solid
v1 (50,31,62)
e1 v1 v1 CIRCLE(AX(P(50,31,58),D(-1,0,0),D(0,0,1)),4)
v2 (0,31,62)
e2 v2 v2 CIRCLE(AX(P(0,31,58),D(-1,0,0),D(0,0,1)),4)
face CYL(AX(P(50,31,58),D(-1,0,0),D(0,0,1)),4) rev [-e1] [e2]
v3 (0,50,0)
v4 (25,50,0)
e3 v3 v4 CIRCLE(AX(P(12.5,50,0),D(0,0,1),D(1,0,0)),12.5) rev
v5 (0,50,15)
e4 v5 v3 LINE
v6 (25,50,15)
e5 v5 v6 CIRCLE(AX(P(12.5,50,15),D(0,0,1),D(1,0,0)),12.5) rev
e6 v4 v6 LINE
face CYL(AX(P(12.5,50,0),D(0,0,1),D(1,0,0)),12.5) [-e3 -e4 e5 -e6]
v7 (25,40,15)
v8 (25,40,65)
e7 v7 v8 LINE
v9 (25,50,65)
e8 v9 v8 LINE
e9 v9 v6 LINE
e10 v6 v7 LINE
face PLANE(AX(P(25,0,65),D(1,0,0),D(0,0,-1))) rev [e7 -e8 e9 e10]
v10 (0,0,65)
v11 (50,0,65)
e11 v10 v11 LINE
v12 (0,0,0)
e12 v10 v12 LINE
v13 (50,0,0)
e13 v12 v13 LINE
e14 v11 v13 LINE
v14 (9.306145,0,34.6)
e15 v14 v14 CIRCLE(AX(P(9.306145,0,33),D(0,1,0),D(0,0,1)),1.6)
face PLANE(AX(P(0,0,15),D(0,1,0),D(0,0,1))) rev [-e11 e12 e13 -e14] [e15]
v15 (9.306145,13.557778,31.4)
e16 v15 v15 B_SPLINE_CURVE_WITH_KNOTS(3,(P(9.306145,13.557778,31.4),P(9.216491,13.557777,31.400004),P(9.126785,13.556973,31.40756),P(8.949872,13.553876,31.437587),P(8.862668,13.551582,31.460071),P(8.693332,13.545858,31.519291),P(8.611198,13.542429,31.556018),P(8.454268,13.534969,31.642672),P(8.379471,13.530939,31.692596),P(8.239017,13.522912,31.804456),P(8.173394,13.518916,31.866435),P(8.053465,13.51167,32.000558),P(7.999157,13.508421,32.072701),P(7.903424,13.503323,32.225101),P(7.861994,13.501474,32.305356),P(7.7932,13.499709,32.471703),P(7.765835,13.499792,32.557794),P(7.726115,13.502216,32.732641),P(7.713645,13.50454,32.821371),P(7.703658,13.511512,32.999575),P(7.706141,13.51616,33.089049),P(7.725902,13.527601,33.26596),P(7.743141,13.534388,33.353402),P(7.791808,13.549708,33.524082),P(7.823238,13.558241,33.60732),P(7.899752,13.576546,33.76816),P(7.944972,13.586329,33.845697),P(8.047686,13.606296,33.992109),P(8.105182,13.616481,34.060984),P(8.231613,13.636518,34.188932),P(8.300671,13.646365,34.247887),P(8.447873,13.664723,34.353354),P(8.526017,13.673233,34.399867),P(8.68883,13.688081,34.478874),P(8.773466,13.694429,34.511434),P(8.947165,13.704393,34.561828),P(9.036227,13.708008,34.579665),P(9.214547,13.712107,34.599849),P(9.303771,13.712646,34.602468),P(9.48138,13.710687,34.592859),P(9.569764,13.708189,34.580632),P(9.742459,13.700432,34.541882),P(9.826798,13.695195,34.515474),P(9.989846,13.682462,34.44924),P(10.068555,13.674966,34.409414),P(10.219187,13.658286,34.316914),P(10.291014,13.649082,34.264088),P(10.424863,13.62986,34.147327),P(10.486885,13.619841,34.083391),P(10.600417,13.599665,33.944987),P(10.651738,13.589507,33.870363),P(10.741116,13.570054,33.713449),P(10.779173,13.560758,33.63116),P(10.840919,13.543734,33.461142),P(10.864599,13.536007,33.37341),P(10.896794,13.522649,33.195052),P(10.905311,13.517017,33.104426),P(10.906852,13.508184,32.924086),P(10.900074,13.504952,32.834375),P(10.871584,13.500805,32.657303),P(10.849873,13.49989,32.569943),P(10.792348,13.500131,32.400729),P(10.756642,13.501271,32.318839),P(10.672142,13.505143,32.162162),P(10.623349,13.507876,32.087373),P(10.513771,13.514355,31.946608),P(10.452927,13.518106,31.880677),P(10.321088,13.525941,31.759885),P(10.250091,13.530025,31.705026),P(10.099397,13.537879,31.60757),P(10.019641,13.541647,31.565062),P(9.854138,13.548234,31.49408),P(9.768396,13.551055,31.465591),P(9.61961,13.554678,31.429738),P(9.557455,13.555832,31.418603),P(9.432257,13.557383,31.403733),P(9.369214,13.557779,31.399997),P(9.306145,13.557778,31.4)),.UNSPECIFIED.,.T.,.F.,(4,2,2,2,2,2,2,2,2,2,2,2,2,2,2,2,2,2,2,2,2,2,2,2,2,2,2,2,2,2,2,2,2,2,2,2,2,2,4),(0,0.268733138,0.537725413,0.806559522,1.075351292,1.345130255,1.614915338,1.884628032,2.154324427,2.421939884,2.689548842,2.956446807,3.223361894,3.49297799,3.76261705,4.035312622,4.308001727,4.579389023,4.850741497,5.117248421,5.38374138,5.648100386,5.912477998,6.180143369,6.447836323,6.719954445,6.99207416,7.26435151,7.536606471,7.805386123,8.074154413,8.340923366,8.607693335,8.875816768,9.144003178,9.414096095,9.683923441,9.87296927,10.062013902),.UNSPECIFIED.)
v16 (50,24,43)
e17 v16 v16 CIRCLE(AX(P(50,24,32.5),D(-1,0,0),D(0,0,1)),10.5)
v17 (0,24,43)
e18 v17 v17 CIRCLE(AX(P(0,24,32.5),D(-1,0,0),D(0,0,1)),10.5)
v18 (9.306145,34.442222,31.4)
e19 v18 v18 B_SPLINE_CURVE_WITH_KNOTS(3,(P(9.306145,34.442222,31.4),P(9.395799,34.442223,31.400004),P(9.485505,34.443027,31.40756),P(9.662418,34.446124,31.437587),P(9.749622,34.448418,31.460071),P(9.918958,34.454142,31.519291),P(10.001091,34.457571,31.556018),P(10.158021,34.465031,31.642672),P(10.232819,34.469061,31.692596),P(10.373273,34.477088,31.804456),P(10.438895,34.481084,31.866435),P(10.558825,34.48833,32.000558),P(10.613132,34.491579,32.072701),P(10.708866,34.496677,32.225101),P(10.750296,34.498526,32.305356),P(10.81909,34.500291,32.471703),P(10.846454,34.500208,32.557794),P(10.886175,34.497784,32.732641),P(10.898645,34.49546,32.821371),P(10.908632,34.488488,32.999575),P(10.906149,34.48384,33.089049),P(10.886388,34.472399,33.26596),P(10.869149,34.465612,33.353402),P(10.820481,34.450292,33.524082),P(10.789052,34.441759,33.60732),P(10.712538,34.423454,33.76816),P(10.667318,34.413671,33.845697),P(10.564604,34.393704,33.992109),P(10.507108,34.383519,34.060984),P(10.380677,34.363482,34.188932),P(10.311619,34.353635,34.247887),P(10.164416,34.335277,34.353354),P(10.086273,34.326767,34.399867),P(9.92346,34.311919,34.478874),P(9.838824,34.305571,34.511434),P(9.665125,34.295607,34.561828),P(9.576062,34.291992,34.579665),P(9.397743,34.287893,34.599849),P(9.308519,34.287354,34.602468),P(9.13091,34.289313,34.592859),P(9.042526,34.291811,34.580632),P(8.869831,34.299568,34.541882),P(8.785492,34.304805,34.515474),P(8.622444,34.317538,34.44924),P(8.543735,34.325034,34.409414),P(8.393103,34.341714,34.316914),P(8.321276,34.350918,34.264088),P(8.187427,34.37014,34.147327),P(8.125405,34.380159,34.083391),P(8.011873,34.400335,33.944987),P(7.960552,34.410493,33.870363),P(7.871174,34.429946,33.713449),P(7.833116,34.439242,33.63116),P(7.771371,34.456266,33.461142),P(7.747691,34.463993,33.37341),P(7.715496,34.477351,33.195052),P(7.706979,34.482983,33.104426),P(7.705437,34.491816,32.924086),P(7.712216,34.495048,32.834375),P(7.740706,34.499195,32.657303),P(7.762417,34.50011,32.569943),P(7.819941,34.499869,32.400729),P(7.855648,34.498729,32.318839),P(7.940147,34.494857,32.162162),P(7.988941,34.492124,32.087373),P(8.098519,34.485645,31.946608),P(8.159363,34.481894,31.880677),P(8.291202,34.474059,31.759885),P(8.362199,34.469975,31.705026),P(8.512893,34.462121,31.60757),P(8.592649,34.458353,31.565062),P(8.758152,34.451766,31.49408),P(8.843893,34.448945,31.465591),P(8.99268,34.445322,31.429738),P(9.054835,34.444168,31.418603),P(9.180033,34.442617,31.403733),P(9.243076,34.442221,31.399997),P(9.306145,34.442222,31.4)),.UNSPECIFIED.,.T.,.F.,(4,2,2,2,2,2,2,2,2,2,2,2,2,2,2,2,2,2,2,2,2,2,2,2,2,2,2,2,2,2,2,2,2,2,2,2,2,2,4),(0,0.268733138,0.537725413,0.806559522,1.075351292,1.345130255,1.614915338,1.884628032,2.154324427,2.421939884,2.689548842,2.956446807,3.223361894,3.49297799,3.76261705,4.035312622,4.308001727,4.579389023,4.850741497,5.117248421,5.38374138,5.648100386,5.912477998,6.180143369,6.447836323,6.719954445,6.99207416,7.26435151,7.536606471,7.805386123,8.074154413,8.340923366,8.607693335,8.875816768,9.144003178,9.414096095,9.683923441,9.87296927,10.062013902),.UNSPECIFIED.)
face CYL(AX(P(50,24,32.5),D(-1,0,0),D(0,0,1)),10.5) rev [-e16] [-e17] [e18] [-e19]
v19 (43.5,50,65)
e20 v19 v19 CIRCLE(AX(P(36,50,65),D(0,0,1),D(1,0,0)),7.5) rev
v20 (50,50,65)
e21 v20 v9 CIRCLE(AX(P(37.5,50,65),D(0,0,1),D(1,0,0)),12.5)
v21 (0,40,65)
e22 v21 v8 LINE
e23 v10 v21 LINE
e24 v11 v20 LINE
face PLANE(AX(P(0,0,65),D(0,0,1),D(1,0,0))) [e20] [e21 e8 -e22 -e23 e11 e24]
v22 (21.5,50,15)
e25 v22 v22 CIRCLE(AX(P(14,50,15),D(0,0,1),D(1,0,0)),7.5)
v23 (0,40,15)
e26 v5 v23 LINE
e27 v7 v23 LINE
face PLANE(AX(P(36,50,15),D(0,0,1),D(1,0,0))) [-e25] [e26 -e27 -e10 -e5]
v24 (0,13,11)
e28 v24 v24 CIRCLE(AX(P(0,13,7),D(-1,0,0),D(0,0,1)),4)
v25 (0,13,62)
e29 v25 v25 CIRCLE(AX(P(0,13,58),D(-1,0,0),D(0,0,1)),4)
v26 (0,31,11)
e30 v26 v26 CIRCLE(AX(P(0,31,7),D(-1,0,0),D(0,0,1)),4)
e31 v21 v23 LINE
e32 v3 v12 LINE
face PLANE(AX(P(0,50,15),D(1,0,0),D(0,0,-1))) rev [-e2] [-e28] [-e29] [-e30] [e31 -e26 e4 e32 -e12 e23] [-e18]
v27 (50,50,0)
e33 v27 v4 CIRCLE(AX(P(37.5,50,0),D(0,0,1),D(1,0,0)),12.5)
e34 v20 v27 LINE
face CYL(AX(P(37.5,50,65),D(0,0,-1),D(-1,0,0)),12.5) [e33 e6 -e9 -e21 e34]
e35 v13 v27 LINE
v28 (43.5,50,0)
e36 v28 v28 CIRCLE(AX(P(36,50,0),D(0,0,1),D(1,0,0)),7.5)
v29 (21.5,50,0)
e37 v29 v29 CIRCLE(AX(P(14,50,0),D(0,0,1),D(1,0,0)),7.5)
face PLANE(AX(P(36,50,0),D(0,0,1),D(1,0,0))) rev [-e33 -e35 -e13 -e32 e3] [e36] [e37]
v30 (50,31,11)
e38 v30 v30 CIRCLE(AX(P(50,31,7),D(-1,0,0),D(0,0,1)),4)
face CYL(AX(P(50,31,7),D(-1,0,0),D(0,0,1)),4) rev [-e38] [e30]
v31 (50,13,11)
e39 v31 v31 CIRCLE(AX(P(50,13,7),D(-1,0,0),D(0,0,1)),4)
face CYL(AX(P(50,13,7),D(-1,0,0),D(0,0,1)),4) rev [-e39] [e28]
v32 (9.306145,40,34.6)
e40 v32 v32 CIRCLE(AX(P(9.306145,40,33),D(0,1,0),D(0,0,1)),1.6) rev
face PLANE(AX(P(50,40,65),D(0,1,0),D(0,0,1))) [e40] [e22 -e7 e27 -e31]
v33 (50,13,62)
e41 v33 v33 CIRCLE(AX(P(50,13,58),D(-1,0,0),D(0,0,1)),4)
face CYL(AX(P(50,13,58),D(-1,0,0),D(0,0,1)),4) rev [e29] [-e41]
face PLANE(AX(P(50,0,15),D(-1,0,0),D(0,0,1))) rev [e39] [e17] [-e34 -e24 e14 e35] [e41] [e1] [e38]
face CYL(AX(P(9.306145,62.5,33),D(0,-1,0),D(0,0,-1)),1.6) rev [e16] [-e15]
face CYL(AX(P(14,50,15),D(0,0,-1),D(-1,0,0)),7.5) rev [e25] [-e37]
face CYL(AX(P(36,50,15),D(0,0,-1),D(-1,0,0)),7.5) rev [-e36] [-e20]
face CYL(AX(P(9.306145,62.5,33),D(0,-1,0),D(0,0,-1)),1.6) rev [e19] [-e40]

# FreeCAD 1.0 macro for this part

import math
import FreeCAD as App
import Part
import Sketcher
Q = App.Units.Quantity

doc = App.newDocument("Part")
body = doc.addObject("PartDesign::Body", "Body")

sketch1 = body.newObject("Sketcher::SketchObject", "Sketch")
sketch1.AttachmentSupport = (doc.getObject("XY_Plane"), [""])
sketch1.MapMode = "FlatFace"
sketch1.addGeometry([
    Part.LineSegment(App.Vector(0, 0, 0), App.Vector(50, 0, 0)),
    Part.LineSegment(App.Vector(50, 0, 0), App.Vector(50, 50, 0)),
    Part.ArcOfCircle(Part.Circle(App.Vector(36, 50, 0), App.Vector(0, 0, 1), 14), math.radians(0), math.radians(142)),
    Part.ArcOfCircle(Part.Circle(App.Vector(14, 50, 0), App.Vector(0, 0, 1), 14), math.radians(38), math.radians(180)),
    Part.LineSegment(App.Vector(0, 50, 0), App.Vector(0, 0, 0)),
    Part.Circle(App.Vector(14, 50, 0), App.Vector(0, 0, 1), 8),
    Part.Circle(App.Vector(36, 50, 0), App.Vector(0, 0, 1), 8),
], False)
sketch1.addConstraint([
    Sketcher.Constraint("Coincident", 0, 2, 1, 1),
    Sketcher.Constraint("Tangent", 1, 2, 2, 1),
    Sketcher.Constraint("Coincident", 2, 2, 3, 1),
    Sketcher.Constraint("Tangent", 3, 2, 4, 1),
    Sketcher.Constraint("Coincident", 4, 2, 0, 1),
    Sketcher.Constraint("Horizontal", 0),
    Sketcher.Constraint("Vertical", 1),
    Sketcher.Constraint("Vertical", 4),
    Sketcher.Constraint("Coincident", 4, 2, -1, 1),
    Sketcher.Constraint("Coincident", 5, 3, 3, 3),
    Sketcher.Constraint("Coincident", 6, 3, 2, 3),
    Sketcher.Constraint("Equal", 2, 3),
    Sketcher.Constraint("Equal", 5, 6),
    Sketcher.Constraint("Horizontal", 2, 3, 3, 3),
    Sketcher.Constraint("Equal", 0, 1),
    Sketcher.Constraint("Diameter", 5, Q("15 mm")),
    Sketcher.Constraint("Radius", 2, Q("14 mm")),
    Sketcher.Constraint("DistanceX", 0, 1, 0, 2, Q("50 mm")),
])
pad1 = body.newObject("PartDesign::Pad", "Pad")
pad1.Profile = sketch1
pad1.Length = 15

sketch2 = body.newObject("Sketcher::SketchObject", "Sketch001")
sketch2.AttachmentSupport = (doc.getObject("XY_Plane"), [""])
sketch2.MapMode = "FlatFace"
sketch2.AttachmentOffset = App.Placement(App.Vector(0, 0, 15), App.Rotation())
sketch2.addGeometry([
    Part.LineSegment(App.Vector(25, 50, 0), App.Vector(25, 0, 0)),
    Part.LineSegment(App.Vector(25, 0, 0), App.Vector(50, 0, 0)),
    Part.LineSegment(App.Vector(50, 0, 0), App.Vector(50, 50, 0)),
    Part.ArcOfCircle(Part.Circle(App.Vector(38, 50, 0), App.Vector(0, 0, 1), 12), math.radians(0), math.radians(180)),
    Part.Circle(App.Vector(36, 50, 0), App.Vector(0, 0, 1), 8),
], False)
sketch2.addConstraint([
    Sketcher.Constraint("Coincident", 0, 2, 1, 1),
    Sketcher.Constraint("Coincident", 1, 2, 2, 1),
    Sketcher.Constraint("Tangent", 2, 2, 3, 1),
    Sketcher.Constraint("Tangent", 3, 2, 0, 1),
    Sketcher.Constraint("Vertical", 0),
    Sketcher.Constraint("Horizontal", 1),
    Sketcher.Constraint("Vertical", 2),
    Sketcher.Constraint("PointOnObject", 0, 2, -1),
    Sketcher.Constraint("Horizontal", 3, 3, 4, 3),
    Sketcher.Constraint("Diameter", 4, Q("15 mm")),
    Sketcher.Constraint("Radius", 3, Q("12.5 mm")),
    Sketcher.Constraint("DistanceY", 0, 2, 0, 1, Q("50 mm")),
    Sketcher.Constraint("DistanceX", -1, 1, 4, 3, Q("36 mm")),
    Sketcher.Constraint("DistanceX", -1, 1, 0, 2, Q("25 mm")),
])
pad2 = body.newObject("PartDesign::Pad", "Pad001")
pad2.Profile = sketch2
pad2.Length = 50

sketch3 = body.newObject("Sketcher::SketchObject", "Sketch002")
sketch3.AttachmentSupport = (doc.getObject("XY_Plane"), [""])
sketch3.MapMode = "FlatFace"
sketch3.addGeometry([
    Part.LineSegment(App.Vector(50, 40, 0), App.Vector(50, 0, 0)),
    Part.LineSegment(App.Vector(50, 0, 0), App.Vector(0, 0, 0)),
    Part.LineSegment(App.Vector(0, 0, 0), App.Vector(0, 40, 0)),
    Part.LineSegment(App.Vector(0, 40, 0), App.Vector(50, 40, 0)),
], False)
sketch3.addConstraint([
    Sketcher.Constraint("Coincident", 0, 2, 1, 1),
    Sketcher.Constraint("Coincident", 1, 2, 2, 1),
    Sketcher.Constraint("Coincident", 2, 2, 3, 1),
    Sketcher.Constraint("Coincident", 3, 2, 0, 1),
    Sketcher.Constraint("Vertical", 0),
    Sketcher.Constraint("Horizontal", 1),
    Sketcher.Constraint("Vertical", 2),
    Sketcher.Constraint("Horizontal", 3),
    Sketcher.Constraint("Coincident", 1, 2, -1, 1),
    Sketcher.Constraint("DistanceX", 1, 2, 1, 1, Q("50 mm")),
    Sketcher.Constraint("DistanceY", 0, 2, 0, 1, Q("40 mm")),
])
pad3 = body.newObject("PartDesign::Pad", "Pad002")
pad3.Profile = sketch3
pad3.Length = 65

sketch4 = body.newObject("Sketcher::SketchObject", "Sketch003")
sketch4.AttachmentSupport = (doc.getObject("XY_Plane"), [""])
sketch4.MapMode = "FlatFace"
sketch4.AttachmentOffset = App.Placement(App.Vector(0, 0, 15), App.Rotation())
sketch4.addGeometry([
    Part.ArcOfCircle(Part.Circle(App.Vector(38, 50, 0), App.Vector(0, 0, 1), 12), math.radians(0), math.radians(180)),
    Part.ArcOfCircle(Part.Circle(App.Vector(36, 50, 0), App.Vector(0, 0, 1), 14), math.radians(0), math.radians(142)),
    Part.ArcOfCircle(Part.Circle(App.Vector(14, 50, 0), App.Vector(0, 0, 1), 14), math.radians(38), math.radians(180)),
    Part.ArcOfCircle(Part.Circle(App.Vector(12, 50, 0), App.Vector(0, 0, 1), 12), math.radians(0), math.radians(180)),
], False)
sketch4.addConstraint([
    Sketcher.Constraint("Tangent", 0, 1, 1, 1),
    Sketcher.Constraint("Coincident", 1, 2, 2, 1),
    Sketcher.Constraint("Tangent", 2, 2, 3, 2),
    Sketcher.Constraint("Tangent", 3, 1, 0, 2),
    Sketcher.Constraint("Equal", 1, 2),
    Sketcher.Constraint("Equal", 0, 3),
    Sketcher.Constraint("PointOnObject", 2, 2, -2),
    Sketcher.Constraint("Horizontal", 0, 3, 1, 3),
    Sketcher.Constraint("Horizontal", 1, 3, 2, 3),
    Sketcher.Constraint("Horizontal", 2, 3, 3, 3),
    Sketcher.Constraint("Radius", 1, Q("14 mm")),
    Sketcher.Constraint("Radius", 0, Q("12.5 mm")),
    Sketcher.Constraint("DistanceY", -1, 1, 0, 3, Q("50 mm")),
])
pocket1 = body.newObject("PartDesign::Pocket", "Pocket")
pocket1.Profile = sketch4
pocket1.Type = "ThroughAll"

sketch5 = body.newObject("Sketcher::SketchObject", "Sketch004")
sketch5.AttachmentSupport = (doc.getObject("YZ_Plane"), [""])
sketch5.MapMode = "FlatFace"
sketch5.addGeometry([
    Part.Circle(App.Vector(13, 7, 0), App.Vector(0, 0, 1), 4),
    Part.Circle(App.Vector(13, 58, 0), App.Vector(0, 0, 1), 4),
    Part.Circle(App.Vector(31, 58, 0), App.Vector(0, 0, 1), 4),
    Part.Circle(App.Vector(31, 7, 0), App.Vector(0, 0, 1), 4),
    Part.Circle(App.Vector(24, 32.5, 0), App.Vector(0, 0, 1), 10.5),
], False)
sketch5.addConstraint([
    Sketcher.Constraint("Equal", 0, 1),
    Sketcher.Constraint("Equal", 1, 2),
    Sketcher.Constraint("Equal", 2, 3),
    Sketcher.Constraint("Horizontal", 1, 3, 2, 3),
    Sketcher.Constraint("Horizontal", 0, 3, 3, 3),
    Sketcher.Constraint("Vertical", 0, 3, 1, 3),
    Sketcher.Constraint("Vertical", 2, 3, 3, 3),
    Sketcher.Constraint("Diameter", 0, Q("8 mm")),
    Sketcher.Constraint("Diameter", 4, Q("21 mm")),
    Sketcher.Constraint("DistanceX", -1, 1, 0, 3, Q("13 mm")),
    Sketcher.Constraint("DistanceY", -1, 1, 0, 3, Q("7 mm")),
    Sketcher.Constraint("DistanceY", -1, 1, 1, 3, Q("58 mm")),
    Sketcher.Constraint("DistanceX", -1, 1, 2, 3, Q("31 mm")),
    Sketcher.Constraint("DistanceX", -1, 1, 4, 3, Q("24 mm")),
    Sketcher.Constraint("DistanceY", -1, 1, 4, 3, Q("32.5 mm")),
])
pocket2 = body.newObject("PartDesign::Pocket", "Pocket001")
pocket2.Profile = sketch5
pocket2.Type = "ThroughAll"
pocket2.Reversed = True

sketch6 = body.newObject("Sketcher::SketchObject", "Sketch005")
sketch6.AttachmentSupport = (doc.getObject("XZ_Plane"), [""])
sketch6.MapMode = "FlatFace"
sketch6.AttachmentOffset = App.Placement(App.Vector(0, 0, -40), App.Rotation())
sketch6.addGeometry(Part.Circle(App.Vector(9.3, 33, 0), App.Vector(0, 0, 1), 1.6), False)
sketch6.addConstraint([
    Sketcher.Constraint("Diameter", 0, Q("3.2 mm")),
    Sketcher.Constraint("DistanceY", -1, 1, 0, 3, Q("33 mm")),
    Sketcher.Constraint("DistanceX", -1, 1, 0, 3, Q("9.306145 mm")),
])
pocket3 = body.newObject("PartDesign::Pocket", "Pocket002")
pocket3.Profile = sketch6
pocket3.Type = "ThroughAll"
pocket3.Midplane = True

doc.recompute()
